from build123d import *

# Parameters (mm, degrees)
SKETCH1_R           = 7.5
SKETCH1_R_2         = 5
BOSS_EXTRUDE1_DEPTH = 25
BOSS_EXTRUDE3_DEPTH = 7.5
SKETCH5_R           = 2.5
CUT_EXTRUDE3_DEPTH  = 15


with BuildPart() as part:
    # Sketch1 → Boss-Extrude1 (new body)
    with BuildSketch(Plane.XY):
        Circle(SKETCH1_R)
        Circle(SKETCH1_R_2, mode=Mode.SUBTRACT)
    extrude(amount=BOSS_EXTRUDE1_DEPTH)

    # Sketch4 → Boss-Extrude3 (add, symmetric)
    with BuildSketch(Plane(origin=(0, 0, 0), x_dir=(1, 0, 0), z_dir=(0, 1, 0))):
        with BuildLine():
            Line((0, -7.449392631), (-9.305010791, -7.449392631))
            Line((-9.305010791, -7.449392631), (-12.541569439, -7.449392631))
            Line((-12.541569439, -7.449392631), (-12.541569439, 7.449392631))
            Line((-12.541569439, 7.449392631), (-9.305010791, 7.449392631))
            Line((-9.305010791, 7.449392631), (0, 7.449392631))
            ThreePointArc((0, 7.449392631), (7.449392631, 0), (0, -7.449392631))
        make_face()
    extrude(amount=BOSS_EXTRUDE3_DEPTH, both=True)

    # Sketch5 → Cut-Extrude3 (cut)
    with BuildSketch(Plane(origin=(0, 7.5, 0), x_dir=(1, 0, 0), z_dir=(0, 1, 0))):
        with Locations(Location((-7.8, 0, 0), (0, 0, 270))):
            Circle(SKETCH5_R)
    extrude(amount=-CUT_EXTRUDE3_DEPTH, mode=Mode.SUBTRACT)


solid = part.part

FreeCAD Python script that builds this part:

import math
import FreeCAD as App
import Part
import Sketcher

doc = App.newDocument("Part")
params = doc.addObject("Spreadsheet::Sheet", "Params")
for row, (alias, value) in enumerate([
    ("sketch1_diameter", "15 mm"),
    ("sketch1_diameter2", "10 mm"),
    ("pad1_length", "25 mm"),
    ("pad2_length", "15 mm"),
    ("sketch3_diameter", "5 mm"),
    ("pocket1_length", "15 mm"),
], start=1):
    params.set(f"A{row}", alias)
    params.set(f"B{row}", "=" + value)
    params.setAlias(f"B{row}", alias)

body = doc.addObject("PartDesign::Body", "Body")

# Sketch on XY plane
sketch1 = body.newObject("Sketcher::SketchObject", "Sketch")
sketch1.AttachmentSupport = (doc.getObject("XY_Plane"), [""])
sketch1.MapMode = "FlatFace"
sketch1.addGeometry([
    Part.Circle(App.Vector(0, 0, 0), App.Vector(0, 0, 1), 8),
    Part.Circle(App.Vector(0, 0, 0), App.Vector(0, 0, 1), 5),
], False)
sketch1.addConstraint([
    Sketcher.Constraint("Coincident", 0, 3, -1, 1),
    Sketcher.Constraint("Coincident", 1, 3, -1, 1),
    Sketcher.Constraint("Diameter", 0, 15.0),
    Sketcher.Constraint("Diameter", 1, 10.0),
])
sketch1.setExpression("Constraints[2]", "Params.sketch1_diameter")
sketch1.setExpression("Constraints[3]", "Params.sketch1_diameter2")
pad1 = body.newObject("PartDesign::Pad", "Pad")
pad1.Profile = sketch1
pad1.setExpression("Length", "Params.pad1_length")

# Sketch on XZ plane
sketch2 = body.newObject("Sketcher::SketchObject", "Sketch001")
sketch2.AttachmentSupport = (doc.getObject("XZ_Plane"), [""])
sketch2.MapMode = "FlatFace"
sketch2.addGeometry([
    Part.LineSegment(App.Vector(-13, 7, 0), App.Vector(0, 7, 0)),
    Part.ArcOfCircle(Part.Circle(App.Vector(0, 0, 0), App.Vector(0, 0, 1), 7), math.radians(-90), math.radians(90)),
    Part.LineSegment(App.Vector(0, -7, 0), App.Vector(-13, -7, 0)),
    Part.LineSegment(App.Vector(-13, -7, 0), App.Vector(-13, 7, 0)),
], False)
sketch2.addConstraint([
    Sketcher.Constraint("Tangent", 0, 2, 1, 2),
    Sketcher.Constraint("Tangent", 1, 1, 2, 1),
    Sketcher.Constraint("Coincident", 2, 2, 3, 1),
    Sketcher.Constraint("Coincident", 3, 2, 0, 1),
    Sketcher.Constraint("Horizontal", 0),
    Sketcher.Constraint("Horizontal", 2),
    Sketcher.Constraint("Vertical", 3),
    Sketcher.Constraint("Coincident", 1, 3, -1, 1),
    Sketcher.Constraint("Radius", 1, 7.449393),
    Sketcher.Constraint("DistanceX", 0, 1, 0, 2, 12.541569),
])
pad2 = body.newObject("PartDesign::Pad", "Pad001")
pad2.Profile = sketch2
pad2.setExpression("Length", "Params.pad2_length")
pad2.Midplane = True

# Sketch on XZ plane
sketch3 = body.newObject("Sketcher::SketchObject", "Sketch002")
sketch3.AttachmentSupport = (doc.getObject("XZ_Plane"), [""])
sketch3.MapMode = "FlatFace"
sketch3.AttachmentOffset = App.Placement(App.Vector(0, 0, -7.5), App.Rotation())
sketch3.addGeometry(Part.Circle(App.Vector(-7.8, 0, 0), App.Vector(0, 0, 1), 2.5), False)
sketch3.addConstraint([
    Sketcher.Constraint("PointOnObject", 0, 3, -1),
    Sketcher.Constraint("Diameter", 0, 5.0),
    Sketcher.Constraint("DistanceX", 0, 3, -1, 1, 7.8),
])
sketch3.setExpression("Constraints[1]", "Params.sketch3_diameter")
pocket1 = body.newObject("PartDesign::Pocket", "Pocket")
pocket1.Profile = sketch3
pocket1.setExpression("Length", "Params.pocket1_length")
pocket1.Reversed = True

doc.recompute()
